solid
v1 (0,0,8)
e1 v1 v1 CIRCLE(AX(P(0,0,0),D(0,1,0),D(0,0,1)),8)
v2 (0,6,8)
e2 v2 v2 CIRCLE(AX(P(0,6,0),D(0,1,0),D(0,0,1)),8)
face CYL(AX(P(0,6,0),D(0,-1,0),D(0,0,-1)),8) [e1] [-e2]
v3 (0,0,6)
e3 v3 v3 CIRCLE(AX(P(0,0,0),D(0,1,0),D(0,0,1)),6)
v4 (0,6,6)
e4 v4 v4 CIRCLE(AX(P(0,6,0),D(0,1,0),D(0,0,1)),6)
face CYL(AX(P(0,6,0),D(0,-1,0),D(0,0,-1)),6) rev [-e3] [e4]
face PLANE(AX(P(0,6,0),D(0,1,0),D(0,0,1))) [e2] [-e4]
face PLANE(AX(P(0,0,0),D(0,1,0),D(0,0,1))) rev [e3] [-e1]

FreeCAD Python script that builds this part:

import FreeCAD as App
import Part
import Sketcher

doc = App.newDocument("Part")
body = doc.addObject("PartDesign::Body", "Body")

sketch1 = body.newObject("Sketcher::SketchObject", "Sketch")
sketch1.AttachmentSupport = (doc.getObject("XZ_Plane"), [""])
sketch1.MapMode = "FlatFace"
sketch1.addGeometry([
    Part.Circle(App.Vector(0, 0, 0), App.Vector(0, 0, 1), 8),
    Part.Circle(App.Vector(0, 0, 0), App.Vector(0, 0, 1), 6),
], False)
sketch1.addConstraint([
    Sketcher.Constraint("Coincident", 0, 3, -1, 1),
    Sketcher.Constraint("Coincident", 1, 3, -1, 1),
    Sketcher.Constraint("Diameter", 0, 16.0),
    Sketcher.Constraint("Diameter", 1, 12.0),
])
pad1 = body.newObject("PartDesign::Pad", "Pad")
pad1.Profile = sketch1
pad1.Length = 6
pad1.Reversed = True

doc.recompute()
